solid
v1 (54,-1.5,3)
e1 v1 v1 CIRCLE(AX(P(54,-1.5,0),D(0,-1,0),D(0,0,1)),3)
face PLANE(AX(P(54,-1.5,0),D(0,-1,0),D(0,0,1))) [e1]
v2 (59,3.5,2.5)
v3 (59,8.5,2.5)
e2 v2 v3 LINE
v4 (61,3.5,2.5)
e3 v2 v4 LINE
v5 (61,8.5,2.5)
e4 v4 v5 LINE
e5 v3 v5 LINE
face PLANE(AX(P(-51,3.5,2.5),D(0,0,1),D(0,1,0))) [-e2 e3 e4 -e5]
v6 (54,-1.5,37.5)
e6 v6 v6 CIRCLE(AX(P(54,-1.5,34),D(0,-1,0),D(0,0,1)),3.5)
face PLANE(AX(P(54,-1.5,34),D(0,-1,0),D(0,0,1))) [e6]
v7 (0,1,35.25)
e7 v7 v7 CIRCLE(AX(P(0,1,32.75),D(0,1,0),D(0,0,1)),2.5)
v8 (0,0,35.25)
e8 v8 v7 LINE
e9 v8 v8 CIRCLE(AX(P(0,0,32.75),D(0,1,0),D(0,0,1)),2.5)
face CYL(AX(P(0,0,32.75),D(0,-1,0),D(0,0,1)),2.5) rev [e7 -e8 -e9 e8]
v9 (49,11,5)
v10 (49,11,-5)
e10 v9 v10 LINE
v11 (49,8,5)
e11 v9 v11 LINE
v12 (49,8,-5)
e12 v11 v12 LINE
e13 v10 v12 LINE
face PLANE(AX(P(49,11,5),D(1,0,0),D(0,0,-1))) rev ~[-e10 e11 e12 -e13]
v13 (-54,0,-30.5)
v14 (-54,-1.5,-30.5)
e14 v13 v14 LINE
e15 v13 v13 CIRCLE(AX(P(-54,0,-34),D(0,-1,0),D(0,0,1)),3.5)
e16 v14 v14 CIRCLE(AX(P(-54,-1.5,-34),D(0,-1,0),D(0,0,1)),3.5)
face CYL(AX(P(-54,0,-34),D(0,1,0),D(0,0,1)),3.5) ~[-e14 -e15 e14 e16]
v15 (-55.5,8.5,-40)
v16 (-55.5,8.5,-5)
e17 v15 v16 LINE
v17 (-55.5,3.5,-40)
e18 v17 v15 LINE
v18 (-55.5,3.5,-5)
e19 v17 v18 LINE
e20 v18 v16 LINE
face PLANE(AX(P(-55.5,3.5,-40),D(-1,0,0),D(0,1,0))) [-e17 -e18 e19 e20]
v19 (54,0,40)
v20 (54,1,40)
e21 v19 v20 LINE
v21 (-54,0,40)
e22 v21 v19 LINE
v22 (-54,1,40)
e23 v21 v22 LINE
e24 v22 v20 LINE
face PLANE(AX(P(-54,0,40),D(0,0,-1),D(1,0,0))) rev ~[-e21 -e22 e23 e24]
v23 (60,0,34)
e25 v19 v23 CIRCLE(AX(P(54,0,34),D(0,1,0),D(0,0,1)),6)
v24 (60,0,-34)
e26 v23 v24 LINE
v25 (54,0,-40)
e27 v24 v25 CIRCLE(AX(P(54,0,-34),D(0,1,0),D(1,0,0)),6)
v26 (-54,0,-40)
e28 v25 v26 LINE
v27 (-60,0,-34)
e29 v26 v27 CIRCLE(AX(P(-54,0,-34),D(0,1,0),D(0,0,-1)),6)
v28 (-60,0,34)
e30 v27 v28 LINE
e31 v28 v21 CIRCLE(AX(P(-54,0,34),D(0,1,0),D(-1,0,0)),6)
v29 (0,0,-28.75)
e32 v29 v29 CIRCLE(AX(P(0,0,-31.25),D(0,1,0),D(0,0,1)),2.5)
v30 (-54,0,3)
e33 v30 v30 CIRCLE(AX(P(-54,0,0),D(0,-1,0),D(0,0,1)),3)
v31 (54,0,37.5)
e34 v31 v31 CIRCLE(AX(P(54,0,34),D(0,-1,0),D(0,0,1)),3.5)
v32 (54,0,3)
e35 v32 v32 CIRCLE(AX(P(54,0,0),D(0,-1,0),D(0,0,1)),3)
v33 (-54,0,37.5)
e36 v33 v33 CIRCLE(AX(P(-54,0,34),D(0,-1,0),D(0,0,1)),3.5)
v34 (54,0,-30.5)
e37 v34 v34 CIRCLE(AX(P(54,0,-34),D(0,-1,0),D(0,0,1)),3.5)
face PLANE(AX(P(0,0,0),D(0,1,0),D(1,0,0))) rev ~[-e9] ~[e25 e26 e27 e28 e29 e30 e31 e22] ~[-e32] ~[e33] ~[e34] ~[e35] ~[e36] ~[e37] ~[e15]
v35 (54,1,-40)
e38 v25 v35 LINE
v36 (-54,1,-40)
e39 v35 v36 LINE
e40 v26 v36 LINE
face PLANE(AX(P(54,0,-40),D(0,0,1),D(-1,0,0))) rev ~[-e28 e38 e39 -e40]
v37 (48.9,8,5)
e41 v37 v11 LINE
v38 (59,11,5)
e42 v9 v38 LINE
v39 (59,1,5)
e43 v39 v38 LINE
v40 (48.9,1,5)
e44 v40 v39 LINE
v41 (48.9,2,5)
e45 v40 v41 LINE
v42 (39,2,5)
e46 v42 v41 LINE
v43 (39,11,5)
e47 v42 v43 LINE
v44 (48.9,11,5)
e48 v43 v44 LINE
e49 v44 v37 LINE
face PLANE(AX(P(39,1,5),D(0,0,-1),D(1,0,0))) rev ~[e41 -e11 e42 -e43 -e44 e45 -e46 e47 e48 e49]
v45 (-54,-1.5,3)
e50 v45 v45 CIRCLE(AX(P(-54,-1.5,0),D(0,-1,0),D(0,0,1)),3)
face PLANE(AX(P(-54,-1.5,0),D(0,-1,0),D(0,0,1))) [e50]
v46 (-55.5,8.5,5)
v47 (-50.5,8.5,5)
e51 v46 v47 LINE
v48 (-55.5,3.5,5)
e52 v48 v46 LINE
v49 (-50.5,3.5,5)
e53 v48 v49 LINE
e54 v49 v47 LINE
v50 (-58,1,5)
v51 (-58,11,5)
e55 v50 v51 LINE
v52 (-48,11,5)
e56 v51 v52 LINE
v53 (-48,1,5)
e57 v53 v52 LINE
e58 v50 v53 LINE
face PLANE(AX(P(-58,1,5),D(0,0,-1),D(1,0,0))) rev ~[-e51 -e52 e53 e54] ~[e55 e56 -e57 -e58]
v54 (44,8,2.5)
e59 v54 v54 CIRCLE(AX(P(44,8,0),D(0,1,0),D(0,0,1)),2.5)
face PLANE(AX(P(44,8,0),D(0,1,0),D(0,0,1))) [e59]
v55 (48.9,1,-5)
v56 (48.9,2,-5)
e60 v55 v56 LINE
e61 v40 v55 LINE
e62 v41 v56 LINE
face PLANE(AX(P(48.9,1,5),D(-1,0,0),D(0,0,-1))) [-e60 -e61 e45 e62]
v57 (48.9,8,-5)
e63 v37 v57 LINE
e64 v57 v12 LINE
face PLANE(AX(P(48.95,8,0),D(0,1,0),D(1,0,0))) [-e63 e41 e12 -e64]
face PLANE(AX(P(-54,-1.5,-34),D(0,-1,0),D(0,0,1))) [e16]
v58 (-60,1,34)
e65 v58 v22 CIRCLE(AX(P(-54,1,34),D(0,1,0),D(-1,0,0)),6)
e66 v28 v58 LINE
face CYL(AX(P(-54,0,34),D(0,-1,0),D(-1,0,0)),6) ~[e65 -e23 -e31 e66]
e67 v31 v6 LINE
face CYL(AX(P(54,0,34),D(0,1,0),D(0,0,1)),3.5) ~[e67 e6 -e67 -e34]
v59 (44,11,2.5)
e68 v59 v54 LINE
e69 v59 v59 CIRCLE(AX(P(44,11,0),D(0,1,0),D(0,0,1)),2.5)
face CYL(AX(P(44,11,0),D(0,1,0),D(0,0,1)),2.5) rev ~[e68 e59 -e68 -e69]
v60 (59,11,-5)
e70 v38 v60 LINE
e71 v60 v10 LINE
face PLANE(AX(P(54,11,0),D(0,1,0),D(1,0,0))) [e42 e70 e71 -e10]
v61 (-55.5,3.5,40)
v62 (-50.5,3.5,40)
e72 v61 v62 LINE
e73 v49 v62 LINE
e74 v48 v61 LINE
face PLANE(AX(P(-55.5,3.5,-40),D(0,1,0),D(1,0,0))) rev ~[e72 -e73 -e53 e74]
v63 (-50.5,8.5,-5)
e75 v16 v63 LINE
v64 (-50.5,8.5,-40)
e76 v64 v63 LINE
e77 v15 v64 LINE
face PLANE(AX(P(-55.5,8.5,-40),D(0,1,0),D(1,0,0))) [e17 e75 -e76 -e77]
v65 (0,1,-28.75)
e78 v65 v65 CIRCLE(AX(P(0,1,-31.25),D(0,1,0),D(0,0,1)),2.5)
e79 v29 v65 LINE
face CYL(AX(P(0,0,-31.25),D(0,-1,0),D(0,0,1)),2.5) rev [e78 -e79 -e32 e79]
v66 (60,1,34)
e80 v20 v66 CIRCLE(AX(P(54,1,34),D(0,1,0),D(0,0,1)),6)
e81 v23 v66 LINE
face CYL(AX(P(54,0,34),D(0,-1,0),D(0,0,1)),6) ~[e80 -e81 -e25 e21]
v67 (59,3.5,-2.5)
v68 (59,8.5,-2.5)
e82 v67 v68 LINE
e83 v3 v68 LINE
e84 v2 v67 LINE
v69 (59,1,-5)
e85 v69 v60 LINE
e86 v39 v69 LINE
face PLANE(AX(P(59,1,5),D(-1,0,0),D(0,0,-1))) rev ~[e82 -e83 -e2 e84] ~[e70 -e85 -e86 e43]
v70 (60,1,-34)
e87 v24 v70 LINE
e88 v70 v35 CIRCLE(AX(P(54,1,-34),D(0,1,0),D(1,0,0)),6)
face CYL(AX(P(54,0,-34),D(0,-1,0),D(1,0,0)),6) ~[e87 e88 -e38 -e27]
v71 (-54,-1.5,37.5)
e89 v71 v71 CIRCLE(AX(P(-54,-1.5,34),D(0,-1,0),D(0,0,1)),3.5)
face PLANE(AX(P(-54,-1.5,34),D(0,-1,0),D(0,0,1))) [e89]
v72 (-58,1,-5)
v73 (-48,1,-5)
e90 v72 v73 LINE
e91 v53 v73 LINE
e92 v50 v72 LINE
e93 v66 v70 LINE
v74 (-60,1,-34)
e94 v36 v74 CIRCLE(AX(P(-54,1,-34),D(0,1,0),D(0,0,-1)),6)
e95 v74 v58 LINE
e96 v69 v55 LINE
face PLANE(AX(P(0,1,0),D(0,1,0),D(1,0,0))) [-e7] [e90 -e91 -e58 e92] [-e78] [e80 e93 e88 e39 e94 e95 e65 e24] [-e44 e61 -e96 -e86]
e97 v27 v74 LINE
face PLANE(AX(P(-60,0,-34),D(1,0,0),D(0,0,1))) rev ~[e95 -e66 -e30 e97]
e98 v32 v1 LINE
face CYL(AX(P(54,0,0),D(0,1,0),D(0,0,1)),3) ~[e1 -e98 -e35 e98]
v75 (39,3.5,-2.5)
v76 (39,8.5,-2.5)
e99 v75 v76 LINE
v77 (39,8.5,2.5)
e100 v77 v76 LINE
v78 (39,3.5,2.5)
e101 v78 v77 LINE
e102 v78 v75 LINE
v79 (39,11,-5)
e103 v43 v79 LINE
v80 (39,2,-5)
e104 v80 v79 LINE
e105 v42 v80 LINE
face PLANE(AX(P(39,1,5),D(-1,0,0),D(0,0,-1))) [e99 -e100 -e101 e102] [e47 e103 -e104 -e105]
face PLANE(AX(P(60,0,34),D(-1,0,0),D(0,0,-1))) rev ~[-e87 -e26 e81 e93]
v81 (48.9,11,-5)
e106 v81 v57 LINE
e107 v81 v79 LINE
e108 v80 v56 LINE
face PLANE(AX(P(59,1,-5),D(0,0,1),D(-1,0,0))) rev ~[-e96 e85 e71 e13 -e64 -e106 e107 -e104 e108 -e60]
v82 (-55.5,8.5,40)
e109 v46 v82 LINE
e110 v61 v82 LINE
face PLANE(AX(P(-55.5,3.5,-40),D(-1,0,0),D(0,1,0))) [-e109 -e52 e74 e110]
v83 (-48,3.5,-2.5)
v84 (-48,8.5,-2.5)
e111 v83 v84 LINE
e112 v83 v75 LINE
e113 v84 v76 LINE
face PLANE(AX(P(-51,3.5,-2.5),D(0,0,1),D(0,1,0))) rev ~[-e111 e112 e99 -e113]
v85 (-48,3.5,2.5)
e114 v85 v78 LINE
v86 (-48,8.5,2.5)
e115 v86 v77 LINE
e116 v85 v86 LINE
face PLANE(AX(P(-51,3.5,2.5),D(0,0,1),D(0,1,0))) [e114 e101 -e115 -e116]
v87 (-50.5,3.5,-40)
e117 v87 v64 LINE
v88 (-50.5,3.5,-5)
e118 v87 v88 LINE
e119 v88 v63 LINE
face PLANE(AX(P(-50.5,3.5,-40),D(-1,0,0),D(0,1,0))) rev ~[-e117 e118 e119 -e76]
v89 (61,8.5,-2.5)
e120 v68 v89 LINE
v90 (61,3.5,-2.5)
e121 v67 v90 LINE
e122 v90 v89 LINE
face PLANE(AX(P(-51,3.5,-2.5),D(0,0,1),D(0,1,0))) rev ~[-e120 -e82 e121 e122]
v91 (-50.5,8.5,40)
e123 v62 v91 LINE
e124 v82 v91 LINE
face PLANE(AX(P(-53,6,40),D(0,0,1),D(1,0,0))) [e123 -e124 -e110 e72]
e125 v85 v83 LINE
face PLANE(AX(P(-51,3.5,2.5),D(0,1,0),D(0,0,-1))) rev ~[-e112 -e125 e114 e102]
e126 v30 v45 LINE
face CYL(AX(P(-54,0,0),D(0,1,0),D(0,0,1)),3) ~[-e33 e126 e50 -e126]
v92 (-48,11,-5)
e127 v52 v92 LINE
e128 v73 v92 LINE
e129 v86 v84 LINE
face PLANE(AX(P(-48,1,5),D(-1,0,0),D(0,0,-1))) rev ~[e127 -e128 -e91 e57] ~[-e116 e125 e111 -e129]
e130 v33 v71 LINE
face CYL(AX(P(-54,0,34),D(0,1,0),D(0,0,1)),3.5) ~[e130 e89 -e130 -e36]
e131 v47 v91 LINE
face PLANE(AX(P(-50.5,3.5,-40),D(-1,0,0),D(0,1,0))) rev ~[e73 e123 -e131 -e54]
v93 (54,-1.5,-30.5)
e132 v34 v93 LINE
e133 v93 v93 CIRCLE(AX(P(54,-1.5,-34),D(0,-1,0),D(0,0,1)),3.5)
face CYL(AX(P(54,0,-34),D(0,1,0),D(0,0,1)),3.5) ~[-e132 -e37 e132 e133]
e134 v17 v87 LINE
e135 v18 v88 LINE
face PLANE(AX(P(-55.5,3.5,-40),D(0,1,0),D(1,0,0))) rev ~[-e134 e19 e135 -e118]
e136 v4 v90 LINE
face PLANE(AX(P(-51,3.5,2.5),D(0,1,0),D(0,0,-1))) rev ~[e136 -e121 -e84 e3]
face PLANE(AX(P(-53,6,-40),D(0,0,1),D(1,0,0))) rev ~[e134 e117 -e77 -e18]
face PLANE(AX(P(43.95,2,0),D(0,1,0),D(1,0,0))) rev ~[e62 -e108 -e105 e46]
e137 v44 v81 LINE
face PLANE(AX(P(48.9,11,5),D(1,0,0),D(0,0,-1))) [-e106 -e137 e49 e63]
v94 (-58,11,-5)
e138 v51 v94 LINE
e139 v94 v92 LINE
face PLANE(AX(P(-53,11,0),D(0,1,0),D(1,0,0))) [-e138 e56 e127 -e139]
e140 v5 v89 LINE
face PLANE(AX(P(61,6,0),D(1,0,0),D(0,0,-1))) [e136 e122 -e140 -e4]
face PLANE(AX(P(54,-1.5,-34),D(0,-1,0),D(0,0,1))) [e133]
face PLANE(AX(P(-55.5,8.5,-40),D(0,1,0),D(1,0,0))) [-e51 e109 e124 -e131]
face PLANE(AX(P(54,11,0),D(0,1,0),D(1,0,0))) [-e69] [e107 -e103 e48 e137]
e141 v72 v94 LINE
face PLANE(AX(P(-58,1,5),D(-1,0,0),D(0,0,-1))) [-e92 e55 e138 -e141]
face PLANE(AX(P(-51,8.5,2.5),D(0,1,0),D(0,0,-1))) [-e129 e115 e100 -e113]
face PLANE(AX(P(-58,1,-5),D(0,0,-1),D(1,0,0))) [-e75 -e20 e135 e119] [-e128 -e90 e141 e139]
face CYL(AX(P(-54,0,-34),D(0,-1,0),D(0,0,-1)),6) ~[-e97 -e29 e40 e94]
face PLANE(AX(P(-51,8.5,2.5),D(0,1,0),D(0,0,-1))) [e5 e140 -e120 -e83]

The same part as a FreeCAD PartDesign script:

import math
import FreeCAD as App
import Part
import Sketcher
from FreeCAD import Vector

doc = App.newDocument("Part")
body = doc.addObject("PartDesign::Body", "Body")

sketch1 = body.newObject("Sketcher::SketchObject", "Sketch")
sketch1.AttachmentSupport = (doc.getObject("XZ_Plane"), [""])
sketch1.MapMode = "FlatFace"
sketch1.addGeometry([
    Part.LineSegment(Vector(-54, 40, 0), Vector(54, 40, 0)),
    Part.ArcOfCircle(Part.Circle(Vector(54, 34, 0), Vector(0, 0, 1), 6), math.radians(0), math.radians(90)),
    Part.LineSegment(Vector(60, 34, 0), Vector(60, -34, 0)),
    Part.ArcOfCircle(Part.Circle(Vector(54, -34, 0), Vector(0, 0, 1), 6), math.radians(-90), math.radians(0)),
    Part.LineSegment(Vector(54, -40, 0), Vector(-54, -40, 0)),
    Part.ArcOfCircle(Part.Circle(Vector(-54, -34, 0), Vector(0, 0, 1), 6), math.radians(180), math.radians(270)),
    Part.LineSegment(Vector(-60, -34, 0), Vector(-60, 34, 0)),
    Part.ArcOfCircle(Part.Circle(Vector(-54, 34, 0), Vector(0, 0, 1), 6), math.radians(90), math.radians(180)),
    Part.Circle(Vector(0, 32.8, 0), Vector(0, 0, 1), 2.5),
    Part.Circle(Vector(0, -31.2, 0), Vector(0, 0, 1), 2.5),
], False)
sketch1.addConstraint([
    Sketcher.Constraint("Tangent", 0, 2, 1, 2),
    Sketcher.Constraint("Tangent", 1, 1, 2, 1),
    Sketcher.Constraint("Tangent", 2, 2, 3, 2),
    Sketcher.Constraint("Tangent", 3, 1, 4, 1),
    Sketcher.Constraint("Tangent", 4, 2, 5, 2),
    Sketcher.Constraint("Tangent", 5, 1, 6, 1),
    Sketcher.Constraint("Tangent", 6, 2, 7, 2),
    Sketcher.Constraint("Tangent", 7, 1, 0, 1),
    Sketcher.Constraint("Horizontal", 0),
    Sketcher.Constraint("Vertical", 2),
    Sketcher.Constraint("Horizontal", 4),
    Sketcher.Constraint("Vertical", 6),
    Sketcher.Constraint("Equal", 1, 3),
    Sketcher.Constraint("Equal", 3, 5),
    Sketcher.Constraint("Equal", 5, 7),
    Sketcher.Constraint("Equal", 8, 9),
    Sketcher.Constraint("Symmetric", 1, 3, 5, 3, -1, 1),
    Sketcher.Constraint("PointOnObject", 8, 3, -2),
    Sketcher.Constraint("PointOnObject", 9, 3, -2),
    Sketcher.Constraint("Diameter", 8, 5.0),
    Sketcher.Constraint("Radius", 1, 6.0),
    Sketcher.Constraint("DistanceX", 0, 1, 0, 2, 108.0),
    Sketcher.Constraint("DistanceY", 2, 2, 2, 1, 68.0),
    Sketcher.Constraint("DistanceY", 9, 3, 8, 3, 64.0),
    Sketcher.Constraint("DistanceY", -1, 1, 8, 3, 32.75),
])
pad1 = body.newObject("PartDesign::Pad", "Pad")
pad1.Profile = sketch1
pad1.Length = 1
pad1.Reversed = True

sketch2 = body.newObject("Sketcher::SketchObject", "Sketch001")
sketch2.AttachmentSupport = (doc.getObject("XZ_Plane"), [""])
sketch2.MapMode = "FlatFace"
sketch2.addGeometry([
    Part.Circle(Vector(-54, 34, 0), Vector(0, 0, 1), 3.5),
    Part.Circle(Vector(-54, 0, 0), Vector(0, 0, 1), 3),
    Part.Circle(Vector(-54, -34, 0), Vector(0, 0, 1), 3.5),
    Part.Circle(Vector(54, 34, 0), Vector(0, 0, 1), 3.5),
    Part.Circle(Vector(54, -34, 0), Vector(0, 0, 1), 3.5),
    Part.Circle(Vector(54, 0, 0), Vector(0, 0, 1), 3),
], False)
sketch2.addConstraint([
    Sketcher.Constraint("Equal", 0, 2),
    Sketcher.Constraint("Equal", 2, 3),
    Sketcher.Constraint("Equal", 3, 4),
    Sketcher.Constraint("Equal", 1, 5),
    Sketcher.Constraint("Symmetric", 2, 3, 3, 3, -1, 1),
    Sketcher.Constraint("Symmetric", 0, 3, 4, 3, -1, 1),
    Sketcher.Constraint("Symmetric", 1, 3, 5, 3, -1, 1),
    Sketcher.Constraint("Symmetric", 0, 3, 3, 3, -2),
    Sketcher.Constraint("PointOnObject", 1, 3, -1),
    Sketcher.Constraint("Vertical", 0, 3, 1, 3),
    Sketcher.Constraint("Diameter", 0, 7.0),
    Sketcher.Constraint("Diameter", 1, 6.0),
    Sketcher.Constraint("DistanceX", 0, 3, -1, 1, 54.0),
    Sketcher.Constraint("DistanceY", -1, 1, 0, 3, 34.0),
])
pad2 = body.newObject("PartDesign::Pad", "Pad001")
pad2.Profile = sketch2
pad2.Length = 1.5

sketch3 = body.newObject("Sketcher::SketchObject", "Sketch002")
sketch3.AttachmentSupport = (doc.getObject("XZ_Plane"), [""])
sketch3.MapMode = "FlatFace"
sketch3.AttachmentOffset = App.Placement(Vector(0, 0, -1), App.Rotation())
sketch3.addGeometry([
    Part.LineSegment(Vector(59, 5, 0), Vector(59, -5, 0)),
    Part.LineSegment(Vector(59, -5, 0), Vector(39, -5, 0)),
    Part.LineSegment(Vector(39, -5, 0), Vector(39, 5, 0)),
    Part.LineSegment(Vector(39, 5, 0), Vector(59, 5, 0)),
    Part.LineSegment(Vector(-58, -5, 0), Vector(-58, 5, 0)),
    Part.LineSegment(Vector(-58, 5, 0), Vector(-48, 5, 0)),
    Part.LineSegment(Vector(-48, 5, 0), Vector(-48, -5, 0)),
    Part.LineSegment(Vector(-48, -5, 0), Vector(-58, -5, 0)),
], False)
sketch3.addConstraint([
    Sketcher.Constraint("Coincident", 0, 2, 1, 1),
    Sketcher.Constraint("Coincident", 1, 2, 2, 1),
    Sketcher.Constraint("Coincident", 2, 2, 3, 1),
    Sketcher.Constraint("Coincident", 3, 2, 0, 1),
    Sketcher.Constraint("Coincident", 4, 2, 5, 1),
    Sketcher.Constraint("Coincident", 5, 2, 6, 1),
    Sketcher.Constraint("Coincident", 6, 2, 7, 1),
    Sketcher.Constraint("Coincident", 7, 2, 4, 1),
    Sketcher.Constraint("Vertical", 0),
    Sketcher.Constraint("Horizontal", 1),
    Sketcher.Constraint("Vertical", 2),
    Sketcher.Constraint("Horizontal", 3),
    Sketcher.Constraint("Vertical", 4),
    Sketcher.Constraint("Horizontal", 5),
    Sketcher.Constraint("Vertical", 6),
    Sketcher.Constraint("Horizontal", 7),
    Sketcher.Constraint("Horizontal", 3, 2, 4, 2),
    Sketcher.Constraint("Horizontal", 1, 2, 6, 2),
    Sketcher.Constraint("Equal", 7, 0),
    Sketcher.Constraint("DistanceX", 1, 2, 1, 1, 20.0),
    Sketcher.Constraint("DistanceX", 5, 1, 5, 2, 10.0),
    Sketcher.Constraint("DistanceX", -1, 1, 0, 2, 59.0),
    Sketcher.Constraint("DistanceY", 0, 2, -1, 1, 5.0),
    Sketcher.Constraint("DistanceX", 4, 2, -1, 1, 58.0),
])
pad3 = body.newObject("PartDesign::Pad", "Pad002")
pad3.Profile = sketch3
pad3.Length = 10
pad3.Reversed = True

sketch4 = body.newObject("Sketcher::SketchObject", "Sketch003")
sketch4.AttachmentSupport = (doc.getObject("XY_Plane"), [""])
sketch4.MapMode = "FlatFace"
sketch4.AttachmentOffset = App.Placement(Vector(0, 0, 5), App.Rotation())
sketch4.addGeometry([
    Part.LineSegment(Vector(-56, 8, 0), Vector(-56, 4, 0)),
    Part.LineSegment(Vector(-56, 4, 0), Vector(-50, 4, 0)),
    Part.LineSegment(Vector(-50, 4, 0), Vector(-50, 8, 0)),
    Part.LineSegment(Vector(-50, 8, 0), Vector(-56, 8, 0)),
], False)
sketch4.addConstraint([
    Sketcher.Constraint("Coincident", 0, 2, 1, 1),
    Sketcher.Constraint("Coincident", 1, 2, 2, 1),
    Sketcher.Constraint("Coincident", 2, 2, 3, 1),
    Sketcher.Constraint("Coincident", 3, 2, 0, 1),
    Sketcher.Constraint("Vertical", 0),
    Sketcher.Constraint("Horizontal", 1),
    Sketcher.Constraint("Vertical", 2),
    Sketcher.Constraint("Horizontal", 3),
    Sketcher.Constraint("Equal", 3, 0),
    Sketcher.Constraint("DistanceX", 1, 1, 1, 2, 5.0),
    Sketcher.Constraint("DistanceX", 0, 2, -1, 1, 55.5),
    Sketcher.Constraint("DistanceY", -1, 1, 0, 2, 3.5),
])
pad4 = body.newObject("PartDesign::Pad", "Pad003")
pad4.Profile = sketch4
pad4.Type = "TwoLengths"
pad4.Length = 35
pad4.Length2 = 45

sketch5 = body.newObject("Sketcher::SketchObject", "Sketch004")
sketch5.AttachmentSupport = (doc.getObject("YZ_Plane"), [""])
sketch5.MapMode = "FlatFace"
sketch5.AttachmentOffset = App.Placement(Vector(0, 0, 59), App.Rotation())
sketch5.addGeometry([
    Part.LineSegment(Vector(8, 2, 0), Vector(4, 2, 0)),
    Part.LineSegment(Vector(4, 2, 0), Vector(4, -2, 0)),
    Part.LineSegment(Vector(4, -2, 0), Vector(8, -2, 0)),
    Part.LineSegment(Vector(8, -2, 0), Vector(8, 2, 0)),
], False)
sketch5.addConstraint([
    Sketcher.Constraint("Coincident", 0, 2, 1, 1),
    Sketcher.Constraint("Coincident", 1, 2, 2, 1),
    Sketcher.Constraint("Coincident", 2, 2, 3, 1),
    Sketcher.Constraint("Coincident", 3, 2, 0, 1),
    Sketcher.Constraint("Horizontal", 0),
    Sketcher.Constraint("Vertical", 1),
    Sketcher.Constraint("Horizontal", 2),
    Sketcher.Constraint("Vertical", 3),
    Sketcher.Constraint("Equal", 2, 1),
    Sketcher.Constraint("DistanceX", 0, 2, 0, 1, 5.0),
    Sketcher.Constraint("DistanceX", -1, 1, 0, 2, 3.5),
    Sketcher.Constraint("DistanceY", -1, 1, 0, 2, 2.5),
])
pad5 = body.newObject("PartDesign::Pad", "Pad004")
pad5.Profile = sketch5
pad5.Type = "TwoLengths"
pad5.Length = 2
pad5.Length2 = 110

sketch6 = body.newObject("Sketcher::SketchObject", "Sketch005")
sketch6.AttachmentSupport = (doc.getObject("XZ_Plane"), [""])
sketch6.MapMode = "FlatFace"
sketch6.AttachmentOffset = App.Placement(Vector(0, 0, -1), App.Rotation())
sketch6.addGeometry([
    Part.LineSegment(Vector(39, -5, 0), Vector(39, 5, 0)),
    Part.LineSegment(Vector(39, 5, 0), Vector(49, 5, 0)),
    Part.LineSegment(Vector(49, 5, 0), Vector(49, -5, 0)),
    Part.LineSegment(Vector(49, -5, 0), Vector(39, -5, 0)),
], False)
sketch6.addConstraint([
    Sketcher.Constraint("Coincident", 0, 2, 1, 1),
    Sketcher.Constraint("Coincident", 1, 2, 2, 1),
    Sketcher.Constraint("Coincident", 2, 2, 3, 1),
    Sketcher.Constraint("Coincident", 3, 2, 0, 1),
    Sketcher.Constraint("Vertical", 0),
    Sketcher.Constraint("Horizontal", 1),
    Sketcher.Constraint("Vertical", 2),
    Sketcher.Constraint("Horizontal", 3),
    Sketcher.Constraint("DistanceY", 0, 1, 0, 2, 10.0),
    Sketcher.Constraint("DistanceX", 1, 1, 1, 2, 9.9),
    Sketcher.Constraint("DistanceX", -1, 1, 0, 2, 39.0),
    Sketcher.Constraint("DistanceY", -1, 1, 0, 2, 5.0),
])
pocket1 = body.newObject("PartDesign::Pocket", "Pocket")
pocket1.Profile = sketch6
pocket1.Length = 1

sketch7 = body.newObject("Sketcher::SketchObject", "Sketch006")
sketch7.AttachmentSupport = (doc.getObject("XZ_Plane"), [""])
sketch7.MapMode = "FlatFace"
sketch7.AttachmentOffset = App.Placement(Vector(0, 0, -11), App.Rotation())
sketch7.addGeometry([
    Part.Circle(Vector(44, 0, 0), Vector(0, 0, 1), 2.5),
    Part.LineSegment(Vector(48.9, -5, 0), Vector(48.9, 5, 0)),
    Part.LineSegment(Vector(48.9, 5, 0), Vector(49, 5, 0)),
    Part.LineSegment(Vector(49, 5, 0), Vector(49, -5, 0)),
    Part.LineSegment(Vector(49, -5, 0), Vector(48.9, -5, 0)),
], False)
sketch7.addConstraint([
    Sketcher.Constraint("Coincident", 1, 2, 2, 1),
    Sketcher.Constraint("Coincident", 2, 2, 3, 1),
    Sketcher.Constraint("Coincident", 3, 2, 4, 1),
    Sketcher.Constraint("Coincident", 4, 2, 1, 1),
    Sketcher.Constraint("Vertical", 1),
    Sketcher.Constraint("Horizontal", 2),
    Sketcher.Constraint("Vertical", 3),
    Sketcher.Constraint("Horizontal", 4),
    Sketcher.Constraint("PointOnObject", 0, 3, -1),
    Sketcher.Constraint("Diameter", 0, 5.0),
    Sketcher.Constraint("DistanceY", 1, 1, 1, 2, 10.0),
    Sketcher.Constraint("DistanceX", 2, 1, 2, 2, 0.1),
    Sketcher.Constraint("DistanceX", -1, 1, 0, 3, 44.0),
    Sketcher.Constraint("DistanceY", -1, 1, 1, 2, 5.0),
    Sketcher.Constraint("DistanceX", -1, 1, 2, 2, 49.0),
])
pocket2 = body.newObject("PartDesign::Pocket", "Pocket001")
pocket2.Profile = sketch7
pocket2.Length = 3
pocket2.Reversed = True

doc.recompute()
